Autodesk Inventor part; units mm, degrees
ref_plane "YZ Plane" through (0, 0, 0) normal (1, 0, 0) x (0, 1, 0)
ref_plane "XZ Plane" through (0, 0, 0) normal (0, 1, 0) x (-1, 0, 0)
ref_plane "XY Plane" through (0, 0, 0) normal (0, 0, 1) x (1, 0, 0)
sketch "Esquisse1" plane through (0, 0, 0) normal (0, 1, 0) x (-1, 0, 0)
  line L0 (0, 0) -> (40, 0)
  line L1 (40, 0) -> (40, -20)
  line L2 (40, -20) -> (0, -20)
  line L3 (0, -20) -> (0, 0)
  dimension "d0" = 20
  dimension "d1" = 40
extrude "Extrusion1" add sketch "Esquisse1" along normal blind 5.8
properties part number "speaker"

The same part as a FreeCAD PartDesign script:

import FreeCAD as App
import Part
import Sketcher

V = App.Vector

doc = App.newDocument("Part")
body = doc.addObject("PartDesign::Body", "Body")

sketch1 = doc.addObject("Sketcher::SketchObject", "Sketch")
body.addObject(sketch1)
sketch1.AttachmentSupport = (doc.XZ_Plane, [""])
sketch1.MapMode = "FlatFace"
sketch1.addGeometry([
    Part.LineSegment(V(-40, 0, 0), V(0, 0, 0)),
    Part.LineSegment(V(0, 0, 0), V(0, -20, 0)),
    Part.LineSegment(V(0, -20, 0), V(-40, -20, 0)),
    Part.LineSegment(V(-40, -20, 0), V(-40, 0, 0)),
], False)
sketch1.addConstraint([
    Sketcher.Constraint("Coincident", 0, 2, 1, 1),
    Sketcher.Constraint("Coincident", 1, 2, 2, 1),
    Sketcher.Constraint("Coincident", 2, 2, 3, 1),
    Sketcher.Constraint("Coincident", 3, 2, 0, 1),
    Sketcher.Constraint("Horizontal", 0),
    Sketcher.Constraint("Vertical", 1),
    Sketcher.Constraint("Horizontal", 2),
    Sketcher.Constraint("Vertical", 3),
    Sketcher.Constraint("Coincident", 0, 2, -1, 1),
    Sketcher.Constraint("DistanceX", 0, 1, 0, 2, 40.0),
    Sketcher.Constraint("DistanceY", 1, 2, 1, 1, 20.0),
])
pad1 = doc.addObject("PartDesign::Pad", "Pad")
body.addObject(pad1)
pad1.Profile = sketch1
pad1.Length = 5.8
pad1.Reversed = True

doc.recompute()
